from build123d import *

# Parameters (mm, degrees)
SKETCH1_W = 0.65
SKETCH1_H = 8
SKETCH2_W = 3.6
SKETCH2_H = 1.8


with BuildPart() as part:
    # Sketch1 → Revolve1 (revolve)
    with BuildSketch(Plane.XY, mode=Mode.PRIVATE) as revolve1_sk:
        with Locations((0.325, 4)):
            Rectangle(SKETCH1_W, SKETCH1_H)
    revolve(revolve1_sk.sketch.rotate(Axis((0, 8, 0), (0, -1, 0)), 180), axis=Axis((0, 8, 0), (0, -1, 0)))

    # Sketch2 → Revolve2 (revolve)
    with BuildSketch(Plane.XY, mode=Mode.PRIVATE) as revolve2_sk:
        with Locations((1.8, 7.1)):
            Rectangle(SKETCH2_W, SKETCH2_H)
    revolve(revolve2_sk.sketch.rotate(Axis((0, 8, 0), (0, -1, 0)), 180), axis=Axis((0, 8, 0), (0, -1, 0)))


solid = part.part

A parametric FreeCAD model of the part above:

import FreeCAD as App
import Part
import Sketcher

V = App.Vector
Q = App.Units.Quantity


def add_polygon(sketch, points):
    """Adds a closed chain of lines whose ends are joined by coincident constraints."""
    first, n = sketch.GeometryCount, len(points)
    for a, b in zip(points, points[1:] + points[:1]):
        sketch.addGeometry(Part.LineSegment(App.Vector(*a, 0), App.Vector(*b, 0)), False)
    for i in range(n):
        sketch.addConstraint(Sketcher.Constraint("Coincident", first + i, 2, first + (i + 1) % n, 1))

doc = App.newDocument("Part")
body = doc.addObject("PartDesign::Body", "Body")

# Sketch on XY plane
sketch1 = body.newObject("Sketcher::SketchObject", "Sketch")
sketch1.AttachmentSupport = (doc.getObject("XY_Plane"), [""])
sketch1.MapMode = "FlatFace"
add_polygon(sketch1, [(0, 8), (0, 0), (0.65, 0), (0.65, 8)])  # lines 0-3
sketch1.addConstraint(Sketcher.Constraint("Vertical", 0))
sketch1.addConstraint(Sketcher.Constraint("Horizontal", 1))
sketch1.addConstraint(Sketcher.Constraint("Vertical", 2))
sketch1.addConstraint(Sketcher.Constraint("Horizontal", 3))
sketch1.addConstraint(Sketcher.Constraint("Coincident", 0, 2, -1, 1))
sketch1.addConstraint(Sketcher.Constraint("DistanceY", 0, 2, 0, 1, Q("8 mm")))
sketch1.addConstraint(Sketcher.Constraint("DistanceX", 1, 1, 1, 2, Q("0.65 mm")))
revolution = body.newObject("PartDesign::Revolution", "Revolution")
revolution.Profile = sketch1
revolution.ReferenceAxis = (sketch1, ["V_Axis"])
revolution.Angle = 360

# Sketch on XY plane
sketch2 = body.newObject("Sketcher::SketchObject", "Sketch001")
sketch2.AttachmentSupport = (doc.getObject("XY_Plane"), [""])
sketch2.MapMode = "FlatFace"
add_polygon(sketch2, [(0, 8), (0, 6.2), (3.6, 6.2), (3.6, 8)])  # lines 0-3
sketch2.addConstraint(Sketcher.Constraint("Vertical", 0))
sketch2.addConstraint(Sketcher.Constraint("Horizontal", 1))
sketch2.addConstraint(Sketcher.Constraint("Vertical", 2))
sketch2.addConstraint(Sketcher.Constraint("Horizontal", 3))
sketch2.addConstraint(Sketcher.Constraint("PointOnObject", 0, 2, -2))
sketch2.addConstraint(Sketcher.Constraint("DistanceX", 1, 1, 1, 2, Q("3.6 mm")))
sketch2.addConstraint(Sketcher.Constraint("DistanceY", 0, 2, 0, 1, Q("1.8 mm")))
sketch2.addConstraint(Sketcher.Constraint("DistanceY", -1, 1, 2, 2, Q("8 mm")))
revolution2 = body.newObject("PartDesign::Revolution", "Revolution001")
revolution2.Profile = sketch2
revolution2.ReferenceAxis = (sketch2, ["V_Axis"])
revolution2.Angle = 360

doc.recompute()
